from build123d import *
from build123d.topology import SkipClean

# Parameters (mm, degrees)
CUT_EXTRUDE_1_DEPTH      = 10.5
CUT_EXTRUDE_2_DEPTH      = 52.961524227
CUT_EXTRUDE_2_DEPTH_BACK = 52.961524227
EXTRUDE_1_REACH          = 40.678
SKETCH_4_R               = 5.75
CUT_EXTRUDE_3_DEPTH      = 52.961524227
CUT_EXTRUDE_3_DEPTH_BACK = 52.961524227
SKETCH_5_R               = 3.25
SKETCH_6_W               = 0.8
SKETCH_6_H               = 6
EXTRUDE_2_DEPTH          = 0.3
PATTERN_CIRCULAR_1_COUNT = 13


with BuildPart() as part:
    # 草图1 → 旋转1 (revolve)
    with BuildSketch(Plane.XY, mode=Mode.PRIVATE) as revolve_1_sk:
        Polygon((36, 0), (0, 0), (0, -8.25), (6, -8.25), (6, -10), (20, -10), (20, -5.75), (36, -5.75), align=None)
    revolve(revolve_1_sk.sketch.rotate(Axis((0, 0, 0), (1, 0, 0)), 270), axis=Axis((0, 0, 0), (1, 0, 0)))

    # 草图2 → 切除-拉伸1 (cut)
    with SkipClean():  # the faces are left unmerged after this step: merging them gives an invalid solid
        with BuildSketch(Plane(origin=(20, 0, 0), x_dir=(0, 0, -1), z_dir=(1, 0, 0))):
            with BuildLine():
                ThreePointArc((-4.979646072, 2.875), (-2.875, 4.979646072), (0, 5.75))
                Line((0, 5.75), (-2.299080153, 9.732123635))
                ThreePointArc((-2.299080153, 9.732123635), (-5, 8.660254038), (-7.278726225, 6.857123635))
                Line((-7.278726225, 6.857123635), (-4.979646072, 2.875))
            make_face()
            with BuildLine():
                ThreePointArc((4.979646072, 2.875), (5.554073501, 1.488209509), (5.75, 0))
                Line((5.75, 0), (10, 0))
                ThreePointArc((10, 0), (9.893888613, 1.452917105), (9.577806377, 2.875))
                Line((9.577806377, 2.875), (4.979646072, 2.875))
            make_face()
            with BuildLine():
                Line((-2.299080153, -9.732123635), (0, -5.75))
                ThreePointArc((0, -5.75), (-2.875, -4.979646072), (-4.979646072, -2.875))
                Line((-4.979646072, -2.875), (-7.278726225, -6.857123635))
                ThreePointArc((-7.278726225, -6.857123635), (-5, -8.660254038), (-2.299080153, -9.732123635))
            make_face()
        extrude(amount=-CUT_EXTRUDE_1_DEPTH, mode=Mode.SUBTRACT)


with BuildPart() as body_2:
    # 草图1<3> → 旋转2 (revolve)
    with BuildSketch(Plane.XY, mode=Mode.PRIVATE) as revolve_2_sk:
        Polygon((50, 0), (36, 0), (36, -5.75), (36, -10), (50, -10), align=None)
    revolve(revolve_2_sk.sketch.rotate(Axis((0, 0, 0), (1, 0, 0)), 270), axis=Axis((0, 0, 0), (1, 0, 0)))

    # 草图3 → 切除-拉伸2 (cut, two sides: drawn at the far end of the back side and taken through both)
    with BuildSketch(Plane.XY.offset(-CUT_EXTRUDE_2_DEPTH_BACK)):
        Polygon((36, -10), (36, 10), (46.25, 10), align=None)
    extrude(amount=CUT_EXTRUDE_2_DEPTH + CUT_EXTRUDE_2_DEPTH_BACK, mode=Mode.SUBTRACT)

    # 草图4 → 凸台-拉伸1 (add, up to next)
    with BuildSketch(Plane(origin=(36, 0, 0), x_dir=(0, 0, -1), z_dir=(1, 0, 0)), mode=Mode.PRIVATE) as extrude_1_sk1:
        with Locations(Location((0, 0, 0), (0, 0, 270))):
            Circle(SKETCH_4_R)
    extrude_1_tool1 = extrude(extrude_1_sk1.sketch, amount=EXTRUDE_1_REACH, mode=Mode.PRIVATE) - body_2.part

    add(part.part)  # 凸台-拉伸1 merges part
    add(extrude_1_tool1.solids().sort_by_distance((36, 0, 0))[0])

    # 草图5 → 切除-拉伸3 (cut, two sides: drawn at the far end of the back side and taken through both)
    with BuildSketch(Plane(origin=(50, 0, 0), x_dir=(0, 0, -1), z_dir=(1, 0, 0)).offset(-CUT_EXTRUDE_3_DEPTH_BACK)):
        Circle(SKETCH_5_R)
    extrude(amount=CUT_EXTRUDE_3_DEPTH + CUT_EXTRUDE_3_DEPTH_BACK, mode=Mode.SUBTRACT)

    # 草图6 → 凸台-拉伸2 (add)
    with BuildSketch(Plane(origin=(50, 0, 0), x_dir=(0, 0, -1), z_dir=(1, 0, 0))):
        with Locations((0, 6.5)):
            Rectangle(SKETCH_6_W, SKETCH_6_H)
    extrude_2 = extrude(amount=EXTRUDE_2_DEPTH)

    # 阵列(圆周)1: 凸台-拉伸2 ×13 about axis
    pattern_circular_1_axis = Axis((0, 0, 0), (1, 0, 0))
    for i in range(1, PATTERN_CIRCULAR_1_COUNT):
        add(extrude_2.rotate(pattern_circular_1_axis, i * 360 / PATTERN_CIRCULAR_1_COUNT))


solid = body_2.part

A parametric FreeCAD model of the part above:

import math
import FreeCAD as App
import Part
import Sketcher

V = App.Vector
Q = App.Units.Quantity

doc = App.newDocument("Part")
body = doc.addObject("PartDesign::Body", "Body")

# Sketch on XY plane
sketch1 = doc.addObject("Sketcher::SketchObject", "Sketch")
body.addObject(sketch1)
sketch1.AttachmentSupport = (doc.XY_Plane, [""])
sketch1.MapMode = "FlatFace"
sketch1.addGeometry(Part.LineSegment(V(36, 0, 0), V(0, 0, 0)), False)
sketch1.addGeometry(Part.LineSegment(V(0, 0, 0), V(0, -8.25, 0)), False)
sketch1.addGeometry(Part.LineSegment(V(0, -8.25, 0), V(6, -8.25, 0)), False)
sketch1.addGeometry(Part.LineSegment(V(6, -8.25, 0), V(6, -10, 0)), False)
sketch1.addGeometry(Part.LineSegment(V(6, -10, 0), V(20, -10, 0)), False)
sketch1.addGeometry(Part.LineSegment(V(20, -10, 0), V(20, -5.75, 0)), False)
sketch1.addGeometry(Part.LineSegment(V(20, -5.75, 0), V(36, -5.75, 0)), False)
sketch1.addGeometry(Part.LineSegment(V(36, -5.75, 0), V(36, 0, 0)), False)
sketch1.addConstraint(Sketcher.Constraint("Coincident", 0, 2, 1, 1))
sketch1.addConstraint(Sketcher.Constraint("Coincident", 1, 2, 2, 1))
sketch1.addConstraint(Sketcher.Constraint("Coincident", 2, 2, 3, 1))
sketch1.addConstraint(Sketcher.Constraint("Coincident", 3, 2, 4, 1))
sketch1.addConstraint(Sketcher.Constraint("Coincident", 4, 2, 5, 1))
sketch1.addConstraint(Sketcher.Constraint("Coincident", 5, 2, 6, 1))
sketch1.addConstraint(Sketcher.Constraint("Coincident", 6, 2, 7, 1))
sketch1.addConstraint(Sketcher.Constraint("Coincident", 7, 2, 0, 1))
sketch1.addConstraint(Sketcher.Constraint("Horizontal", 0))
sketch1.addConstraint(Sketcher.Constraint("Vertical", 1))
sketch1.addConstraint(Sketcher.Constraint("Horizontal", 2))
sketch1.addConstraint(Sketcher.Constraint("Vertical", 3))
sketch1.addConstraint(Sketcher.Constraint("Horizontal", 4))
sketch1.addConstraint(Sketcher.Constraint("Vertical", 5))
sketch1.addConstraint(Sketcher.Constraint("Horizontal", 6))
sketch1.addConstraint(Sketcher.Constraint("Vertical", 7))
sketch1.addConstraint(Sketcher.Constraint("Coincident", 0, 2, -1, 1))
sketch1.addConstraint(Sketcher.Constraint("DistanceX", 0, 2, 0, 1, Q("36 mm")))
sketch1.addConstraint(Sketcher.Constraint("DistanceX", 2, 1, 2, 2, Q("6 mm")))
sketch1.addConstraint(Sketcher.Constraint("DistanceX", 4, 1, 4, 2, Q("14 mm")))
sketch1.addConstraint(Sketcher.Constraint("DistanceY", 3, 2, -1, 1, Q("10 mm")))
sketch1.addConstraint(Sketcher.Constraint("DistanceY", 1, 2, 1, 1, Q("8.25 mm")))
sketch1.addConstraint(Sketcher.Constraint("DistanceY", 5, 1, 5, 2, Q("4.25 mm")))
revolution = doc.addObject("PartDesign::Revolution", "Revolution")
body.addObject(revolution)
revolution.Profile = sketch1
revolution.ReferenceAxis = (sketch1, ["H_Axis"])
revolution.Angle = 360

# Sketch on YZ plane
sketch2 = doc.addObject("Sketcher::SketchObject", "Sketch001")
body.addObject(sketch2)
sketch2.AttachmentSupport = (doc.YZ_Plane, [""])
sketch2.MapMode = "FlatFace"
sketch2.AttachmentOffset = App.Placement(V(0, 0, 20), App.Rotation())
sketch2.addGeometry(Part.ArcOfCircle(Part.Circle(V(0, 0, 0), V(0, 0, 1), 5.75), math.radians(0), math.radians(60)), False)
sketch2.addGeometry(Part.LineSegment(V(5.75, 0, 0), V(9.732124, 2.29908, 0)), False)
sketch2.addGeometry(Part.ArcOfCircle(Part.Circle(V(0, 0, 0), V(0, 0, 1), 10), math.radians(13.291656), math.radians(46.708344)), False)
sketch2.addGeometry(Part.LineSegment(V(6.857124, 7.278726, 0), V(2.875, 4.979646, 0)), False)
sketch2.addGeometry(Part.ArcOfCircle(Part.Circle(V(0, 0, 0), V(0, 0, 1), 5.75), math.radians(-90), math.radians(-60)), False)
sketch2.addGeometry(Part.LineSegment(V(0, -5.75, 0), V(0, -10, 0)), False)
sketch2.addGeometry(Part.ArcOfCircle(Part.Circle(V(0, 0, 0), V(0, 0, 1), 10), math.radians(-90), math.radians(-73.291656)), False)
sketch2.addGeometry(Part.LineSegment(V(2.875, -9.577806, 0), V(2.875, -4.979646, 0)), False)
sketch2.addGeometry(Part.LineSegment(V(-9.732124, 2.29908, 0), V(-5.75, 0, 0)), False)
sketch2.addGeometry(Part.ArcOfCircle(Part.Circle(V(0, 0, 0), V(0, 0, 1), 5.75), math.radians(120), math.radians(180)), False)
sketch2.addGeometry(Part.LineSegment(V(-2.875, 4.979646, 0), V(-6.857124, 7.278726, 0)), False)
sketch2.addGeometry(Part.ArcOfCircle(Part.Circle(V(0, 0, 0), V(0, 0, 1), 10), math.radians(133.291656), math.radians(166.708344)), False)
sketch2.addConstraint(Sketcher.Constraint("Coincident", 0, 1, 1, 1))
sketch2.addConstraint(Sketcher.Constraint("Coincident", 1, 2, 2, 1))
sketch2.addConstraint(Sketcher.Constraint("Coincident", 2, 2, 3, 1))
sketch2.addConstraint(Sketcher.Constraint("Coincident", 3, 2, 0, 2))
sketch2.addConstraint(Sketcher.Constraint("Coincident", 4, 1, 5, 1))
sketch2.addConstraint(Sketcher.Constraint("Coincident", 5, 2, 6, 1))
sketch2.addConstraint(Sketcher.Constraint("Coincident", 6, 2, 7, 1))
sketch2.addConstraint(Sketcher.Constraint("Coincident", 7, 2, 4, 2))
sketch2.addConstraint(Sketcher.Constraint("Coincident", 8, 2, 9, 2))
sketch2.addConstraint(Sketcher.Constraint("Coincident", 9, 1, 10, 1))
sketch2.addConstraint(Sketcher.Constraint("Coincident", 10, 2, 11, 1))
sketch2.addConstraint(Sketcher.Constraint("Coincident", 11, 2, 8, 1))
sketch2.addConstraint(Sketcher.Constraint("Vertical", 5))
sketch2.addConstraint(Sketcher.Constraint("Vertical", 7))
sketch2.addConstraint(Sketcher.Constraint("Coincident", 0, 3, -1, 1))
sketch2.addConstraint(Sketcher.Constraint("Coincident", 2, 3, -1, 1))
sketch2.addConstraint(Sketcher.Constraint("Coincident", 4, 3, -1, 1))
sketch2.addConstraint(Sketcher.Constraint("Coincident", 6, 3, -1, 1))
sketch2.addConstraint(Sketcher.Constraint("Coincident", 9, 3, -1, 1))
sketch2.addConstraint(Sketcher.Constraint("Coincident", 11, 3, -1, 1))
sketch2.addConstraint(Sketcher.Constraint("Equal", 0, 4))
sketch2.addConstraint(Sketcher.Constraint("Equal", 2, 6))
sketch2.addConstraint(Sketcher.Constraint("Equal", 4, 9))
sketch2.addConstraint(Sketcher.Constraint("Equal", 6, 11))
sketch2.addConstraint(Sketcher.Constraint("PointOnObject", 0, 1, -1))
sketch2.addConstraint(Sketcher.Constraint("PointOnObject", 4, 1, -2))
sketch2.addConstraint(Sketcher.Constraint("PointOnObject", 8, 2, -1))
sketch2.addConstraint(Sketcher.Constraint("Parallel", 1, 3))
sketch2.addConstraint(Sketcher.Constraint("Parallel", 8, 10))
sketch2.addConstraint(Sketcher.Constraint("Horizontal", 3, 2, 9, 1))
sketch2.addConstraint(Sketcher.Constraint("Horizontal", 2, 2, 10, 2))
sketch2.addConstraint(Sketcher.Constraint("Vertical", 3, 2, 6, 2))
sketch2.addConstraint(Sketcher.Constraint("Equal", 1, 3))
sketch2.addConstraint(Sketcher.Constraint("Radius", 2, Q("10 mm")))
sketch2.addConstraint(Sketcher.Constraint("Angle", 1, Q("30 deg")))
sketch2.addConstraint(Sketcher.Constraint("Radius", 0, Q("5.75 mm")))
pocket1 = doc.addObject("PartDesign::Pocket", "Pocket")
body.addObject(pocket1)
pocket1.Profile = sketch2
pocket1.Length = 10.5
body2 = doc.addObject("PartDesign::Body", "Body001")
body2.AllowCompound = True

# Sketch on XY plane
sketch3 = doc.addObject("Sketcher::SketchObject", "Sketch002")
body2.addObject(sketch3)
sketch3.AttachmentSupport = (doc.getObject("XY_Plane001"), [""])
sketch3.MapMode = "FlatFace"
sketch3.addGeometry(Part.LineSegment(V(50, 0, 0), V(36, 0, 0)), False)
sketch3.addGeometry(Part.LineSegment(V(36, 0, 0), V(36, -10, 0)), False)
sketch3.addGeometry(Part.LineSegment(V(36, -10, 0), V(50, -10, 0)), False)
sketch3.addGeometry(Part.LineSegment(V(50, -10, 0), V(50, 0, 0)), False)
sketch3.addConstraint(Sketcher.Constraint("Coincident", 0, 2, 1, 1))
sketch3.addConstraint(Sketcher.Constraint("Coincident", 1, 2, 2, 1))
sketch3.addConstraint(Sketcher.Constraint("Coincident", 2, 2, 3, 1))
sketch3.addConstraint(Sketcher.Constraint("Coincident", 3, 2, 0, 1))
sketch3.addConstraint(Sketcher.Constraint("Horizontal", 0))
sketch3.addConstraint(Sketcher.Constraint("Vertical", 1))
sketch3.addConstraint(Sketcher.Constraint("Horizontal", 2))
sketch3.addConstraint(Sketcher.Constraint("Vertical", 3))
sketch3.addConstraint(Sketcher.Constraint("PointOnObject", 0, 2, -1))
sketch3.addConstraint(Sketcher.Constraint("DistanceX", 0, 2, 0, 1, Q("14 mm")))
sketch3.addConstraint(Sketcher.Constraint("DistanceY", 1, 2, 1, 1, Q("10 mm")))
sketch3.addConstraint(Sketcher.Constraint("DistanceX", -1, 1, 0, 2, Q("36 mm")))
revolution2 = doc.addObject("PartDesign::Revolution", "Revolution001")
body2.addObject(revolution2)
revolution2.Profile = sketch3
revolution2.ReferenceAxis = (sketch3, ["H_Axis"])
revolution2.Angle = 360

# Sketch on XY plane
sketch4 = doc.addObject("Sketcher::SketchObject", "Sketch003")
body2.addObject(sketch4)
sketch4.AttachmentSupport = (doc.getObject("XY_Plane001"), [""])
sketch4.MapMode = "FlatFace"
sketch4.addGeometry(Part.LineSegment(V(36, 10, 0), V(36, -10, 0)), False)
sketch4.addGeometry(Part.LineSegment(V(36, -10, 0), V(46.25, 10, 0)), False)
sketch4.addGeometry(Part.LineSegment(V(46.25, 10, 0), V(36, 10, 0)), False)
sketch4.addConstraint(Sketcher.Constraint("Coincident", 0, 2, 1, 1))
sketch4.addConstraint(Sketcher.Constraint("Coincident", 1, 2, 2, 1))
sketch4.addConstraint(Sketcher.Constraint("Coincident", 2, 2, 0, 1))
sketch4.addConstraint(Sketcher.Constraint("Vertical", 0))
sketch4.addConstraint(Sketcher.Constraint("Horizontal", 2))
sketch4.addConstraint(Sketcher.Constraint("DistanceY", 0, 2, 0, 1, Q("20 mm")))
sketch4.addConstraint(Sketcher.Constraint("DistanceX", -1, 1, 0, 2, Q("36 mm")))
sketch4.addConstraint(Sketcher.Constraint("DistanceY", 0, 2, -1, 1, Q("10 mm")))
sketch4.addConstraint(Sketcher.Constraint("DistanceX", 2, 2, 2, 1, Q("10.25 mm")))
pocket2 = doc.addObject("PartDesign::Pocket", "Pocket001")
body2.addObject(pocket2)
pocket2.Profile = sketch4
pocket2.Type = "ThroughAll"
pocket2.Midplane = True
doc.recompute()

boolean = doc.addObject("PartDesign::Boolean", "Boolean")
body2.addObject(boolean)
boolean.Type = "Fuse"
boolean.addObjects([body])

# Sketch on YZ plane
sketch5 = doc.addObject("Sketcher::SketchObject", "Sketch004")
body2.addObject(sketch5)
sketch5.AttachmentSupport = (doc.getObject("YZ_Plane001"), [""])
sketch5.MapMode = "FlatFace"
sketch5.AttachmentOffset = App.Placement(V(0, 0, 36), App.Rotation())
sketch5.addGeometry(Part.Circle(V(0, 0, 0), V(0, 0, 1), 5.75), False)
sketch5.addConstraint(Sketcher.Constraint("Coincident", 0, 3, -1, 1))
sketch5.addConstraint(Sketcher.Constraint("Diameter", 0, Q("11.5 mm")))
pad1 = doc.addObject("PartDesign::Pad", "Pad")
body2.addObject(pad1)
pad1.Profile = sketch5
pad1.Type = "UpToFirst"

# Sketch on YZ plane
sketch6 = doc.addObject("Sketcher::SketchObject", "Sketch005")
body2.addObject(sketch6)
sketch6.AttachmentSupport = (doc.getObject("YZ_Plane001"), [""])
sketch6.MapMode = "FlatFace"
sketch6.AttachmentOffset = App.Placement(V(0, 0, 50), App.Rotation())
sketch6.addGeometry(Part.Circle(V(0, 0, 0), V(0, 0, 1), 3.25), False)
sketch6.addConstraint(Sketcher.Constraint("Coincident", 0, 3, -1, 1))
sketch6.addConstraint(Sketcher.Constraint("Diameter", 0, Q("6.5 mm")))
pocket3 = doc.addObject("PartDesign::Pocket", "Pocket002")
body2.addObject(pocket3)
pocket3.Profile = sketch6
pocket3.Type = "ThroughAll"
pocket3.Midplane = True

# Sketch on YZ plane
sketch7 = doc.addObject("Sketcher::SketchObject", "Sketch006")
body2.addObject(sketch7)
sketch7.AttachmentSupport = (doc.getObject("YZ_Plane001"), [""])
sketch7.MapMode = "FlatFace"
sketch7.AttachmentOffset = App.Placement(V(0, 0, 50), App.Rotation())
sketch7.addGeometry(Part.LineSegment(V(9.5, 0.4, 0), V(3.5, 0.4, 0)), False)
sketch7.addGeometry(Part.LineSegment(V(3.5, 0.4, 0), V(3.5, -0.4, 0)), False)
sketch7.addGeometry(Part.LineSegment(V(3.5, -0.4, 0), V(9.5, -0.4, 0)), False)
sketch7.addGeometry(Part.LineSegment(V(9.5, -0.4, 0), V(9.5, 0.4, 0)), False)
sketch7.addConstraint(Sketcher.Constraint("Coincident", 0, 2, 1, 1))
sketch7.addConstraint(Sketcher.Constraint("Coincident", 1, 2, 2, 1))
sketch7.addConstraint(Sketcher.Constraint("Coincident", 2, 2, 3, 1))
sketch7.addConstraint(Sketcher.Constraint("Coincident", 3, 2, 0, 1))
sketch7.addConstraint(Sketcher.Constraint("Horizontal", 0))
sketch7.addConstraint(Sketcher.Constraint("Vertical", 1))
sketch7.addConstraint(Sketcher.Constraint("Horizontal", 2))
sketch7.addConstraint(Sketcher.Constraint("Vertical", 3))
sketch7.addConstraint(Sketcher.Constraint("DistanceX", 0, 2, 0, 1, Q("6 mm")))
sketch7.addConstraint(Sketcher.Constraint("DistanceY", 1, 2, 1, 1, Q("0.8 mm")))
sketch7.addConstraint(Sketcher.Constraint("DistanceX", -1, 1, 0, 2, Q("3.5 mm")))
sketch7.addConstraint(Sketcher.Constraint("DistanceY", -1, 1, 0, 2, Q("0.4 mm")))
pad2 = doc.addObject("PartDesign::Pad", "Pad001")
body2.addObject(pad2)
pad2.Profile = sketch7
pad2.Length = 0.3
doc.recompute()

polarpattern = doc.addObject("PartDesign::PolarPattern", "PolarPattern")
body2.addObject(polarpattern)
polarpattern.Originals = [pad2]
polarpattern.Axis = (doc.getObject("X_Axis001"), [""])
polarpattern.Angle = 360
polarpattern.Occurrences = 13
body2.Tip = polarpattern

doc.recompute()
